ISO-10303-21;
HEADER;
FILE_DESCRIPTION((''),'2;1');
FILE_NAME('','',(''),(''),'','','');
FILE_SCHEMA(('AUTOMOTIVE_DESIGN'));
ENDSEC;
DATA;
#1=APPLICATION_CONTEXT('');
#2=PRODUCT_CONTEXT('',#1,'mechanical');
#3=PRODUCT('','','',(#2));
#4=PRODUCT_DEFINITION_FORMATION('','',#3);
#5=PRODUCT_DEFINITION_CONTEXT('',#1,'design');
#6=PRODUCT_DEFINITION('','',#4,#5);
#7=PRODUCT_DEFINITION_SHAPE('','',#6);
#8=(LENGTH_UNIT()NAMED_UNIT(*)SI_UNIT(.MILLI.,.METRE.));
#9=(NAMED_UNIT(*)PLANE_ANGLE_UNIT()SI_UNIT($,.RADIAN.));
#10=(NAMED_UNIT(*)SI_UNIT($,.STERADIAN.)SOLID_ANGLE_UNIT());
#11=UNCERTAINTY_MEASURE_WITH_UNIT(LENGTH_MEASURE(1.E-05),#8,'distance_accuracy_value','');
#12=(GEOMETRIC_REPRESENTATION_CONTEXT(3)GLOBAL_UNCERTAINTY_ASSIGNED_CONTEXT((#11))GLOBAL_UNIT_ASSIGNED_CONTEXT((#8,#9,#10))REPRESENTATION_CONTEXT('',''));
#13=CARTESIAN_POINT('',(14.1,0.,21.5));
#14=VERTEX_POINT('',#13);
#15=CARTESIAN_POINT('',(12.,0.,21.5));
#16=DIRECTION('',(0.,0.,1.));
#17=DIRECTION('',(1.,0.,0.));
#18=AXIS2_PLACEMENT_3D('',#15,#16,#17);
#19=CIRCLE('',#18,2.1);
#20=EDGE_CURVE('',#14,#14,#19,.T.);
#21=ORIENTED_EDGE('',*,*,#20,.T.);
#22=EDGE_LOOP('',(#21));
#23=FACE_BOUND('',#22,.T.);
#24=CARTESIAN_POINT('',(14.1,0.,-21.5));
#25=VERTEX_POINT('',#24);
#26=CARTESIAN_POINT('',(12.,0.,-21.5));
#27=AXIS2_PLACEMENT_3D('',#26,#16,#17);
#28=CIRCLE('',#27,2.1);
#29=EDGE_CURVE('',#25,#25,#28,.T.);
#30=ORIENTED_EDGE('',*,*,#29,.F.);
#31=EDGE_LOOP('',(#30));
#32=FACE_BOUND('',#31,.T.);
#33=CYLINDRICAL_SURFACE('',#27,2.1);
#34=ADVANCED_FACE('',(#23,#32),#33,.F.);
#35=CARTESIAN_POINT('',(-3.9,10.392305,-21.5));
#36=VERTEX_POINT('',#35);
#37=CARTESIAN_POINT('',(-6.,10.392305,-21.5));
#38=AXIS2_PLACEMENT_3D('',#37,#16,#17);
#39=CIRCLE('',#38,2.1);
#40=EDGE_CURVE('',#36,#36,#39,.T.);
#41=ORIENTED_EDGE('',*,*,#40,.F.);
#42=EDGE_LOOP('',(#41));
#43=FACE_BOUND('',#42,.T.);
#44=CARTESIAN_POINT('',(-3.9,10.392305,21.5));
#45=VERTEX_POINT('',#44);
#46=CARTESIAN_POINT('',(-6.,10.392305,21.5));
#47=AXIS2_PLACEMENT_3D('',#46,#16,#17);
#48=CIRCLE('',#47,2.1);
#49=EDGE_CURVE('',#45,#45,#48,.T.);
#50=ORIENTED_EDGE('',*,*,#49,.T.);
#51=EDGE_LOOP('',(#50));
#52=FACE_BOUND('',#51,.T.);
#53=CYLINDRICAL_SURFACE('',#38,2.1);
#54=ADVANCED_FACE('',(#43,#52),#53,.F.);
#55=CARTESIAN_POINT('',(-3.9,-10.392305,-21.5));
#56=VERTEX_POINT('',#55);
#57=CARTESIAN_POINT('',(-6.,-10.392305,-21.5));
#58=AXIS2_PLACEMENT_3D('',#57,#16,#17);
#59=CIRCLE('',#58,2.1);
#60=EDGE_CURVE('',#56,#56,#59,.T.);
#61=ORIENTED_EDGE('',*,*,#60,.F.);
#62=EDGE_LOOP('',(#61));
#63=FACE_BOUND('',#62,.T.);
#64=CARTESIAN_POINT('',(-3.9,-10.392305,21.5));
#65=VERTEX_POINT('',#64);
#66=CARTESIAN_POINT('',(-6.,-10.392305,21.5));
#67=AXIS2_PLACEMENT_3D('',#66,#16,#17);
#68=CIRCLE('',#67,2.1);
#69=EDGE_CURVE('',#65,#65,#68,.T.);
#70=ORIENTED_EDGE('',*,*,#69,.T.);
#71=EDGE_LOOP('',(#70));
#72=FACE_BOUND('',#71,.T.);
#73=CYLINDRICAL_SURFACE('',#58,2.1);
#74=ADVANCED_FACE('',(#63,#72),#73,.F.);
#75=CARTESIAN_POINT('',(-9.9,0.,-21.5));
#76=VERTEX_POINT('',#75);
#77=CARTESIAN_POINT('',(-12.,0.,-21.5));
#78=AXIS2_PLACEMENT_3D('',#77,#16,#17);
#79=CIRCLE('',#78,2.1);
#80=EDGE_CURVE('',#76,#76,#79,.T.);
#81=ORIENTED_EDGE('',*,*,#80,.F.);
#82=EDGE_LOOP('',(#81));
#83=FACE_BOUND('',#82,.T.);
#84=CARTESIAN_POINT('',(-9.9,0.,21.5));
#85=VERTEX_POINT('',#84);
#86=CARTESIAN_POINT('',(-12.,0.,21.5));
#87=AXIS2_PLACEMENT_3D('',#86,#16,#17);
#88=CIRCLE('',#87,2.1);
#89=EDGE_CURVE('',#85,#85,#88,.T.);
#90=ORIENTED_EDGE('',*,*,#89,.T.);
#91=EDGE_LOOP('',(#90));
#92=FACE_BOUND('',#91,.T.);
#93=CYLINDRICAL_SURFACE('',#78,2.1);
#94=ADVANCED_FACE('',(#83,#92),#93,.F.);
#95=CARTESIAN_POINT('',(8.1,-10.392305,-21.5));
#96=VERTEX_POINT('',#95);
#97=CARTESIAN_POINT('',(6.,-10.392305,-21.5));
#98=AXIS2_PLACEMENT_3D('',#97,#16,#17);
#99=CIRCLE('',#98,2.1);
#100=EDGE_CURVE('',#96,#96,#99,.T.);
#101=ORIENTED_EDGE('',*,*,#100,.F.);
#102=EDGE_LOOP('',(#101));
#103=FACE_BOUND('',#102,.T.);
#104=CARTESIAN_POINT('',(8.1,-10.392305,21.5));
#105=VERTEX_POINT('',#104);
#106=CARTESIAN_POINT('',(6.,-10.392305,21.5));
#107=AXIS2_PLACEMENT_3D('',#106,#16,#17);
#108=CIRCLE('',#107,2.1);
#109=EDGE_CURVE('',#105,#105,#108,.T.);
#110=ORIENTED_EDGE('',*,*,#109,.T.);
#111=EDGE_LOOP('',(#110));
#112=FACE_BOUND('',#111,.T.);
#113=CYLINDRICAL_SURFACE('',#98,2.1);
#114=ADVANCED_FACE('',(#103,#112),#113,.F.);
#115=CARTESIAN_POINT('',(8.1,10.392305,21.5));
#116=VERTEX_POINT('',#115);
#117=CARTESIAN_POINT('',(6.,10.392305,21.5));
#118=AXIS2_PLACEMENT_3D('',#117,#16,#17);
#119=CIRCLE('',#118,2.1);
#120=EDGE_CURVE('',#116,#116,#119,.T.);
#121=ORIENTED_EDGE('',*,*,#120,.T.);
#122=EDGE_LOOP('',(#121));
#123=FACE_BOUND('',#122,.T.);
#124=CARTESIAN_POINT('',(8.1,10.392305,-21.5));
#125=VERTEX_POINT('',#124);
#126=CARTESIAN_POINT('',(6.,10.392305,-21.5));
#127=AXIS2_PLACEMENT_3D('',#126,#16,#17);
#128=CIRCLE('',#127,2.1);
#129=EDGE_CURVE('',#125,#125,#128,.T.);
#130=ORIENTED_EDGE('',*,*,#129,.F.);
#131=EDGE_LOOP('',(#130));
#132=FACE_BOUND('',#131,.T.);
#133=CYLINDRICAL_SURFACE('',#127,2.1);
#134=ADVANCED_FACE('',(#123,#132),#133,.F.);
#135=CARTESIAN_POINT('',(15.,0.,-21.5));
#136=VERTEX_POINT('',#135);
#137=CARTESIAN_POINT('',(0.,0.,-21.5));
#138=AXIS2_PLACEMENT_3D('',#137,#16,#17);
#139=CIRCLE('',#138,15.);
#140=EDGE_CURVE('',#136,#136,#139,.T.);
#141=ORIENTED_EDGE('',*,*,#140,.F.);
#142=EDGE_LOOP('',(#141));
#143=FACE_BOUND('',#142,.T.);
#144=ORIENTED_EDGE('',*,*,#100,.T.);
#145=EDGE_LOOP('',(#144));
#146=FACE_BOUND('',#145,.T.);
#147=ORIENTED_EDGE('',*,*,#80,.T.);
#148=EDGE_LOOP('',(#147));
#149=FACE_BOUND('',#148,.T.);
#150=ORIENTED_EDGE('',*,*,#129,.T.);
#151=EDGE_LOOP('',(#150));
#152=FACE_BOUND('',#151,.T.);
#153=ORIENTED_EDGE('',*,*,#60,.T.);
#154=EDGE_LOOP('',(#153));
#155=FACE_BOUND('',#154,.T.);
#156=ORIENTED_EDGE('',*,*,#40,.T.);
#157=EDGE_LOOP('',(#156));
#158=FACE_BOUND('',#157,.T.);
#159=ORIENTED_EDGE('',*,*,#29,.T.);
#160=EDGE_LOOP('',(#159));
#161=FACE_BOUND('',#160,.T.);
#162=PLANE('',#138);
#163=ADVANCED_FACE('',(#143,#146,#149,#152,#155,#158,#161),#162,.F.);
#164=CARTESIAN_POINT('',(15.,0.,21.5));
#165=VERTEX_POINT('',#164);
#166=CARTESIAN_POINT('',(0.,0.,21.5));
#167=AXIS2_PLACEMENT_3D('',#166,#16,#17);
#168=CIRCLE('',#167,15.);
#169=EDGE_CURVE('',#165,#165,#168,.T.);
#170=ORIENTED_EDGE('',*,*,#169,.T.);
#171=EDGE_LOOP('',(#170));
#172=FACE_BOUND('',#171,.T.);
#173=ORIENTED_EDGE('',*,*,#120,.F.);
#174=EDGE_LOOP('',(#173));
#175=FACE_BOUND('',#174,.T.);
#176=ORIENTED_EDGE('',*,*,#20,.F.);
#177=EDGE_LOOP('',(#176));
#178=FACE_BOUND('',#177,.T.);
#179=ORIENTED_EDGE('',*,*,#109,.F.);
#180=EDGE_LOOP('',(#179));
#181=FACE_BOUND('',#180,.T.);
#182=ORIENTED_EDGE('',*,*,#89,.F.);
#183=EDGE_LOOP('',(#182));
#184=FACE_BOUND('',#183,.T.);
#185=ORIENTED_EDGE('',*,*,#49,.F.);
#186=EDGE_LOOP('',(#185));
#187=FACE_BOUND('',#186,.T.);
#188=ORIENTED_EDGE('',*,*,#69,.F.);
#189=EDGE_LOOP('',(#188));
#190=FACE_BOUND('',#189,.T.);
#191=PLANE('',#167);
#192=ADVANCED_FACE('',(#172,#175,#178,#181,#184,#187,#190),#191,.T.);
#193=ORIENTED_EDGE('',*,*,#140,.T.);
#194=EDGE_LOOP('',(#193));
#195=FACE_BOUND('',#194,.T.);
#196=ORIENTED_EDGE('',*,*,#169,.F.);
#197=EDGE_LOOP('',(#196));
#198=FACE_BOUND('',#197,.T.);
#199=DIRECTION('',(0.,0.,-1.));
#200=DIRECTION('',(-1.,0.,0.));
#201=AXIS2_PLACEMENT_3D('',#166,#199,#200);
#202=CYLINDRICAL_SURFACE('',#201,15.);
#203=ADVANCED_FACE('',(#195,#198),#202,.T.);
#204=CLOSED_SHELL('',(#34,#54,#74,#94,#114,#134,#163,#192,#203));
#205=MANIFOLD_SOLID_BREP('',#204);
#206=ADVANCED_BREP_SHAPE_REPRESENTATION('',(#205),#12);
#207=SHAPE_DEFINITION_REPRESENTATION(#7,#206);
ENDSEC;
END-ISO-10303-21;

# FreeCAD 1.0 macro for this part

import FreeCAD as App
import Part
import Sketcher
from FreeCAD import Vector

doc = App.newDocument("Part")
body = doc.addObject("PartDesign::Body", "Body")

# Sketch on XY plane
sketch1 = body.newObject("Sketcher::SketchObject", "Sketch")
sketch1.AttachmentSupport = (doc.getObject("XY_Plane"), [""])
sketch1.MapMode = "FlatFace"
sketch1.addGeometry(Part.Circle(Vector(0, 0, 0), Vector(0, 0, 1), 15), False)
sketch1.addConstraint([
    Sketcher.Constraint("Coincident", 0, 3, -1, 1),
    Sketcher.Constraint("Diameter", 0, 30.0),
])
pad1 = body.newObject("PartDesign::Pad", "Pad")
pad1.Profile = sketch1
pad1.Length = 43
pad1.Midplane = True

# Sketch on XY plane
sketch2 = body.newObject("Sketcher::SketchObject", "Sketch001")
sketch2.AttachmentSupport = (doc.getObject("XY_Plane"), [""])
sketch2.MapMode = "FlatFace"
sketch2.AttachmentOffset = App.Placement(Vector(0, 0, 21.5), App.Rotation())
sketch2.addGeometry([
    Part.Circle(Vector(-12, 0, 0), Vector(0, 0, 1), 2.1),  # 0
    Part.Circle(Vector(-6, 10.4, 0), Vector(0, 0, 1), 2.1),  # 1
    Part.Circle(Vector(6, 10.4, 0), Vector(0, 0, 1), 2.1),  # 2
    Part.Circle(Vector(12, 0, 0), Vector(0, 0, 1), 2.1),  # 3
    Part.Circle(Vector(6, -10.4, 0), Vector(0, 0, 1), 2.1),  # 4
    Part.Circle(Vector(-6, -10.4, 0), Vector(0, 0, 1), 2.1),  # 5
], False)
sketch2.addConstraint([
    Sketcher.Constraint("Equal", 0, 1),
    Sketcher.Constraint("Equal", 1, 2),
    Sketcher.Constraint("Equal", 2, 3),
    Sketcher.Constraint("Equal", 3, 4),
    Sketcher.Constraint("Equal", 4, 5),
    Sketcher.Constraint("Symmetric", 0, 3, 3, 3, -1, 1),
    Sketcher.Constraint("Symmetric", 1, 3, 4, 3, -1, 1),
    Sketcher.Constraint("Symmetric", 2, 3, 5, 3, -1, 1),
    Sketcher.Constraint("Symmetric", 1, 3, 2, 3, -2),
    Sketcher.Constraint("PointOnObject", 0, 3, -1),
    Sketcher.Constraint("Diameter", 0, 4.2),
    Sketcher.Constraint("DistanceX", 0, 3, -1, 1, 12.0),
    Sketcher.Constraint("DistanceX", 1, 3, -1, 1, 6.0),
    Sketcher.Constraint("DistanceY", 4, 3, 2, 3, 20.78461),
])
pocket1 = body.newObject("PartDesign::Pocket", "Pocket")
pocket1.Profile = sketch2
pocket1.Type = "ThroughAll"

doc.recompute()
